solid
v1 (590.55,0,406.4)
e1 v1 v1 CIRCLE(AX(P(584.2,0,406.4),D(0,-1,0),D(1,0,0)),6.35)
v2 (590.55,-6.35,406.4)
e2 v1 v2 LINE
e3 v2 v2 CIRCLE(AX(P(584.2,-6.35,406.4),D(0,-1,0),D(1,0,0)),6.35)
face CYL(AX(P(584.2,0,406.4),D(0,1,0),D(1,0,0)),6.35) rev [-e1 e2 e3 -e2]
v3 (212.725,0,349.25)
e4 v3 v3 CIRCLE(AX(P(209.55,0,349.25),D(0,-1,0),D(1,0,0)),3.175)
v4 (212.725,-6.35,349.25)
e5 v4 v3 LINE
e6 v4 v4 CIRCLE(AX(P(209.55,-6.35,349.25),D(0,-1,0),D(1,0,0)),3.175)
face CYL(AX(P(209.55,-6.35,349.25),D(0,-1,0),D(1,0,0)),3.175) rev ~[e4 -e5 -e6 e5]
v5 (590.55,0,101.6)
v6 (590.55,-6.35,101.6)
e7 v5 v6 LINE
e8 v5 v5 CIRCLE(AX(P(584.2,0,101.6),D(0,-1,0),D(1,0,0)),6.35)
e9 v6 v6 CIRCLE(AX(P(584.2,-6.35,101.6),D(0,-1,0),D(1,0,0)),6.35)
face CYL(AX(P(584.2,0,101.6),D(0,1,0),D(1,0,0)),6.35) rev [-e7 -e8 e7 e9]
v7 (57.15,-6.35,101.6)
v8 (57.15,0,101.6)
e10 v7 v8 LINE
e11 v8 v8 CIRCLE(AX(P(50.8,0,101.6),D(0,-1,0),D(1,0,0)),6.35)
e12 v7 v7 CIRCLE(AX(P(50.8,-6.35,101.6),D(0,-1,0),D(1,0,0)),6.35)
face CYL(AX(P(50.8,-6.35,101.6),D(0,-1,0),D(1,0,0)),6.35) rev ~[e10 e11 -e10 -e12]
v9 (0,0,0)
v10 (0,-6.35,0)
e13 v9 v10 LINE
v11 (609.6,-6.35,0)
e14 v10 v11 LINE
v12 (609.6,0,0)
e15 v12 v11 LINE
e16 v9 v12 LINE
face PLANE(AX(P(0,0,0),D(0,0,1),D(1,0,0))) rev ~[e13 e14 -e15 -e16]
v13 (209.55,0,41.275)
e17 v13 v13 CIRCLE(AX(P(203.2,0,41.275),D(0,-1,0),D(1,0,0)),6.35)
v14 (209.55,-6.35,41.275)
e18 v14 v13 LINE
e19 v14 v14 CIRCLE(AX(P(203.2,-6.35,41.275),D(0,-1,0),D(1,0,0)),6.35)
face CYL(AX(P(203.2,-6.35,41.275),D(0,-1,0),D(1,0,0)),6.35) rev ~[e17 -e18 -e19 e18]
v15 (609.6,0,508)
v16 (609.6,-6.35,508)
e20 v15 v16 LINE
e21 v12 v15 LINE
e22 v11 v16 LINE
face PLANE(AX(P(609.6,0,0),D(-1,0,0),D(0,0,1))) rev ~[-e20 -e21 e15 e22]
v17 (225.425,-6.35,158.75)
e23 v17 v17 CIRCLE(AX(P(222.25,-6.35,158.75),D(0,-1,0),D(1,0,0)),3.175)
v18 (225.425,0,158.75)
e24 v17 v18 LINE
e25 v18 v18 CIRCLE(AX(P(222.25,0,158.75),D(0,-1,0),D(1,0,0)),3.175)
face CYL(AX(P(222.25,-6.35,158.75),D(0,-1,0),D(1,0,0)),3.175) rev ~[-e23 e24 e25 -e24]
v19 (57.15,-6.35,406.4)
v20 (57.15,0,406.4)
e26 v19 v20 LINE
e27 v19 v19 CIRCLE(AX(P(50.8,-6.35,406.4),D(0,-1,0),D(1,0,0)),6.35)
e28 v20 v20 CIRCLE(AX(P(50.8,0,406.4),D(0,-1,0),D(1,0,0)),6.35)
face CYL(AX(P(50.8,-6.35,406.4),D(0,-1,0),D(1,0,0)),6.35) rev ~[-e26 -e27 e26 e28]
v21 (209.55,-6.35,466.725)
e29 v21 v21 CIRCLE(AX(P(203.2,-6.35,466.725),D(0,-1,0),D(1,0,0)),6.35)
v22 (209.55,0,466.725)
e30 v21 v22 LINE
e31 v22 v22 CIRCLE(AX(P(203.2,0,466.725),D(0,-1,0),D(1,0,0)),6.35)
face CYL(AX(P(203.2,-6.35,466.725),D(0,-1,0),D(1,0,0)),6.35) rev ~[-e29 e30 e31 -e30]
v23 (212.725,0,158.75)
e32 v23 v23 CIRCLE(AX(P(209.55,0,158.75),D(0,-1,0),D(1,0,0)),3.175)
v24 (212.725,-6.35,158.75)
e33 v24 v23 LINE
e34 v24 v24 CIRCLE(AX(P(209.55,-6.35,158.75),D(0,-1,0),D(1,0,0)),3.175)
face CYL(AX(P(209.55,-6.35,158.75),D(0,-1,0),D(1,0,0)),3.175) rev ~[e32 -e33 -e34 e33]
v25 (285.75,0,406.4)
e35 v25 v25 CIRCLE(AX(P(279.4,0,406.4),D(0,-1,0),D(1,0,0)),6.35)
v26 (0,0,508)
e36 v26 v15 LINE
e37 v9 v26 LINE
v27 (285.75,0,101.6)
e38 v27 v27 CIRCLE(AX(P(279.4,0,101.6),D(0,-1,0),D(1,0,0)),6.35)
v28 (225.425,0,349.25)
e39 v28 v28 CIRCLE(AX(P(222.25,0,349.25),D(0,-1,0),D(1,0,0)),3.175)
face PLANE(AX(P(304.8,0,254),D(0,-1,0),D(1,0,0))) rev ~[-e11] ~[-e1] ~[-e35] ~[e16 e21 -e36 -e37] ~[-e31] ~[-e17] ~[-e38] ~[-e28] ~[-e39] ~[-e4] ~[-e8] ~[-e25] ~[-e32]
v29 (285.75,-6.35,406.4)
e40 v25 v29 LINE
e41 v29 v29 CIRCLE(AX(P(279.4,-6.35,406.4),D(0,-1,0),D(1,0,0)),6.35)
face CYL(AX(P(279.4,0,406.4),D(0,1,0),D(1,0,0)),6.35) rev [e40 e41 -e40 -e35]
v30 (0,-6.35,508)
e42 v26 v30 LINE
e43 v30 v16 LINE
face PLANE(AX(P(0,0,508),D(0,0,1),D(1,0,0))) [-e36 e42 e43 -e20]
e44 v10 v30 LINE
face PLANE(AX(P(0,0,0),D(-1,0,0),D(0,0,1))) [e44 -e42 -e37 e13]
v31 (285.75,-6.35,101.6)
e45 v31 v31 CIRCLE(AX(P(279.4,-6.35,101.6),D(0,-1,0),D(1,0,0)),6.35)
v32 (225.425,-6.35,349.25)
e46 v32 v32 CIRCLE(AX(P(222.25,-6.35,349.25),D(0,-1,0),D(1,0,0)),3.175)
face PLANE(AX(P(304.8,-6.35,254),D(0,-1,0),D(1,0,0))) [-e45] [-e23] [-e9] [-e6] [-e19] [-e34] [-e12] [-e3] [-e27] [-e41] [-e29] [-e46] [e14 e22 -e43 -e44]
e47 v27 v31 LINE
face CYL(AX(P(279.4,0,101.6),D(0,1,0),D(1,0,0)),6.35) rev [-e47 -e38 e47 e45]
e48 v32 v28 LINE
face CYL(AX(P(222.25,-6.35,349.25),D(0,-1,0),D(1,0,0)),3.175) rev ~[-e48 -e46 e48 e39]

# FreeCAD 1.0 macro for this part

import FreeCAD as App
import Part
import Sketcher
Q = App.Units.Quantity


def add_polygon(sketch, points):
    """Adds a closed chain of lines whose ends are joined by coincident constraints."""
    first, n = sketch.GeometryCount, len(points)
    for a, b in zip(points, points[1:] + points[:1]):
        sketch.addGeometry(Part.LineSegment(App.Vector(*a, 0), App.Vector(*b, 0)), False)
    for i in range(n):
        sketch.addConstraint(Sketcher.Constraint("Coincident", first + i, 2, first + (i + 1) % n, 1))

doc = App.newDocument("Part")
body = doc.addObject("PartDesign::Body", "Body")

# Sketch on XZ plane
sketch1 = body.newObject("Sketcher::SketchObject", "Sketch")
sketch1.AttachmentSupport = (doc.getObject("XZ_Plane"), [""])
sketch1.MapMode = "FlatFace"
add_polygon(sketch1, [(0, 508), (0, 0), (609.6, 0), (609.6, 508)])  # lines 0-3
sketch1.addGeometry(Part.Circle(App.Vector(279.4, 101.6, 0), App.Vector(0, 0, 1), 6.35), False)  # 4
sketch1.addGeometry(Part.Circle(App.Vector(584.2, 101.6, 0), App.Vector(0, 0, 1), 6.35), False)  # 5
sketch1.addGeometry(Part.Circle(App.Vector(279.4, 406.4, 0), App.Vector(0, 0, 1), 6.35), False)  # 6
sketch1.addGeometry(Part.Circle(App.Vector(584.2, 406.4, 0), App.Vector(0, 0, 1), 6.35), False)  # 7
sketch1.addConstraint([
    Sketcher.Constraint("Vertical", 0),
    Sketcher.Constraint("Horizontal", 1),
    Sketcher.Constraint("Vertical", 2),
    Sketcher.Constraint("Horizontal", 3),
    Sketcher.Constraint("Coincident", 0, 2, -1, 1),
    Sketcher.Constraint("Equal", 4, 5),
    Sketcher.Constraint("Equal", 5, 6),
    Sketcher.Constraint("Equal", 6, 7),
    Sketcher.Constraint("Horizontal", 4, 3, 5, 3),
    Sketcher.Constraint("Horizontal", 6, 3, 7, 3),
    Sketcher.Constraint("Vertical", 4, 3, 6, 3),
    Sketcher.Constraint("Vertical", 5, 3, 7, 3),
    Sketcher.Constraint("Diameter", 4, Q("0.5 in")),
    Sketcher.Constraint("DistanceX", 1, 1, 1, 2, Q("24 in")),
    Sketcher.Constraint("DistanceY", 0, 2, 0, 1, Q("20 in")),
    Sketcher.Constraint("DistanceX", -1, 1, 4, 3, Q("11 in")),
    Sketcher.Constraint("DistanceY", -1, 1, 4, 3, Q("4 in")),
    Sketcher.Constraint("DistanceX", -1, 1, 5, 3, Q("23 in")),
    Sketcher.Constraint("DistanceY", -1, 1, 6, 3, Q("16 in")),
])
pad1 = body.newObject("PartDesign::Pad", "Pad")
pad1.Profile = sketch1
pad1.Length = Q("0.25 in")

# Sketch on XZ plane
sketch2 = body.newObject("Sketcher::SketchObject", "Sketch001")
sketch2.AttachmentSupport = (doc.getObject("XZ_Plane"), [""])
sketch2.MapMode = "FlatFace"
sketch2.AttachmentOffset = App.Placement(App.Vector(0, 0, 0.25 * 25.4), App.Rotation())
sketch2.addGeometry([
    Part.Circle(App.Vector(209.55, 158.75, 0), App.Vector(0, 0, 1), 3.175),
    Part.Circle(App.Vector(222.25, 158.75, 0), App.Vector(0, 0, 1), 3.175),
    Part.Circle(App.Vector(209.55, 349.25, 0), App.Vector(0, 0, 1), 3.175),
    Part.Circle(App.Vector(222.25, 349.25, 0), App.Vector(0, 0, 1), 3.175),
], False)
sketch2.addConstraint([
    Sketcher.Constraint("Equal", 0, 1),
    Sketcher.Constraint("Equal", 1, 2),
    Sketcher.Constraint("Equal", 2, 3),
    Sketcher.Constraint("Horizontal", 0, 3, 1, 3),
    Sketcher.Constraint("Horizontal", 2, 3, 3, 3),
    Sketcher.Constraint("Vertical", 0, 3, 2, 3),
    Sketcher.Constraint("Vertical", 1, 3, 3, 3),
    Sketcher.Constraint("Diameter", 0, Q("0.25 in")),
    Sketcher.Constraint("DistanceX", 0, 3, 1, 3, Q("0.5 in")),
    Sketcher.Constraint("DistanceY", 0, 3, 2, 3, Q("7.5 in")),
    Sketcher.Constraint("DistanceX", -1, 1, 0, 3, Q("8.25 in")),
    Sketcher.Constraint("DistanceY", -1, 1, 0, 3, Q("6.25 in")),
])
pocket1 = body.newObject("PartDesign::Pocket", "Pocket")
pocket1.Profile = sketch2
pocket1.Length = Q("1 in")

# Sketch on XZ plane
sketch3 = body.newObject("Sketcher::SketchObject", "Sketch002")
sketch3.AttachmentSupport = (doc.getObject("XZ_Plane"), [""])
sketch3.MapMode = "FlatFace"
sketch3.AttachmentOffset = App.Placement(App.Vector(0, 0, 0.25 * 25.4), App.Rotation())
sketch3.addGeometry([
    Part.Circle(App.Vector(50.8, 406.4, 0), App.Vector(0, 0, 1), 6.35),
    Part.Circle(App.Vector(50.8, 101.6, 0), App.Vector(0, 0, 1), 6.35),
], False)
sketch3.addConstraint([
    Sketcher.Constraint("Equal", 0, 1),
    Sketcher.Constraint("Vertical", 0, 3, 1, 3),
    Sketcher.Constraint("Diameter", 0, Q("0.5 in")),
    Sketcher.Constraint("DistanceX", -1, 1, 0, 3, Q("2 in")),
    Sketcher.Constraint("DistanceY", -1, 1, 0, 3, Q("16 in")),
    Sketcher.Constraint("DistanceY", -1, 1, 1, 3, Q("4 in")),
])
pocket2 = body.newObject("PartDesign::Pocket", "Pocket001")
pocket2.Profile = sketch3
pocket2.Length = Q("1 in")

# Sketch on XZ plane
sketch4 = body.newObject("Sketcher::SketchObject", "Sketch003")
sketch4.AttachmentSupport = (doc.getObject("XZ_Plane"), [""])
sketch4.MapMode = "FlatFace"
sketch4.AttachmentOffset = App.Placement(App.Vector(0, 0, 0.25 * 25.4), App.Rotation())
sketch4.addGeometry([
    Part.Circle(App.Vector(203.2, 41.275, 0), App.Vector(0, 0, 1), 6.35),
    Part.Circle(App.Vector(203.2, 466.725, 0), App.Vector(0, 0, 1), 6.35),
], False)
sketch4.addConstraint([
    Sketcher.Constraint("Equal", 0, 1),
    Sketcher.Constraint("Vertical", 0, 3, 1, 3),
    Sketcher.Constraint("Diameter", 0, Q("0.5 in")),
    Sketcher.Constraint("DistanceX", -1, 1, 0, 3, Q("8 in")),
    Sketcher.Constraint("DistanceY", 0, 3, 1, 3, Q("16.75 in")),
    Sketcher.Constraint("DistanceY", -1, 1, 0, 3, Q("1.625 in")),
])
pocket3 = body.newObject("PartDesign::Pocket", "Pocket002")
pocket3.Profile = sketch4
pocket3.Length = Q("1 in")

doc.recompute()
